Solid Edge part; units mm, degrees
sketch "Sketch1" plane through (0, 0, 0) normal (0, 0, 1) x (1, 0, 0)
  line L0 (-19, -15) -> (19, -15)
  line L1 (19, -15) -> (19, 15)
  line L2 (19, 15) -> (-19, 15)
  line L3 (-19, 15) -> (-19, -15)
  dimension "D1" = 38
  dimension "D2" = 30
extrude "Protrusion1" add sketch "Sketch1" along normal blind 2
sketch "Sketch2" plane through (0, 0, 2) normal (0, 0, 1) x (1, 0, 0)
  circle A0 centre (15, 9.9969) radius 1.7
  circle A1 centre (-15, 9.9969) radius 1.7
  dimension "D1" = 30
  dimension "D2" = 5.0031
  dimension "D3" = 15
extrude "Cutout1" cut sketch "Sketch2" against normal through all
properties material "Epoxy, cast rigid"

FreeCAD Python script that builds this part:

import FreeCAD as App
import Part
import Sketcher
from FreeCAD import Vector

doc = App.newDocument("Part")
body = doc.addObject("PartDesign::Body", "Body")

# Sketch on XY plane
sketch1 = doc.addObject("Sketcher::SketchObject", "Sketch")
body.addObject(sketch1)
sketch1.AttachmentSupport = (doc.XY_Plane, [""])
sketch1.MapMode = "FlatFace"
sketch1.addGeometry([
    Part.LineSegment(Vector(-19, 15, 0), Vector(-19, -15, 0)),
    Part.LineSegment(Vector(-19, -15, 0), Vector(19, -15, 0)),
    Part.LineSegment(Vector(19, -15, 0), Vector(19, 15, 0)),
    Part.LineSegment(Vector(19, 15, 0), Vector(-19, 15, 0)),
], False)
sketch1.addConstraint([
    Sketcher.Constraint("Coincident", 0, 2, 1, 1),
    Sketcher.Constraint("Coincident", 1, 2, 2, 1),
    Sketcher.Constraint("Coincident", 2, 2, 3, 1),
    Sketcher.Constraint("Coincident", 3, 2, 0, 1),
    Sketcher.Constraint("Vertical", 0),
    Sketcher.Constraint("Horizontal", 1),
    Sketcher.Constraint("Vertical", 2),
    Sketcher.Constraint("Horizontal", 3),
    Sketcher.Constraint("Symmetric", 0, 2, 2, 2, -1, 1),
    Sketcher.Constraint("DistanceX", 0, 2, -1, 1, 19.0),
    Sketcher.Constraint("DistanceY", 0, 2, 0, 1, 30.0),
])
pad1 = doc.addObject("PartDesign::Pad", "Pad")
body.addObject(pad1)
pad1.Profile = sketch1
pad1.Length = 2

# Sketch on XY plane
sketch2 = doc.addObject("Sketcher::SketchObject", "Sketch001")
body.addObject(sketch2)
sketch2.AttachmentSupport = (doc.XY_Plane, [""])
sketch2.MapMode = "FlatFace"
sketch2.AttachmentOffset = App.Placement(Vector(0, 0, 2), App.Rotation())
sketch2.addGeometry([
    Part.Circle(Vector(15, 10, 0), Vector(0, 0, 1), 1.7),
    Part.Circle(Vector(-15, 10, 0), Vector(0, 0, 1), 1.7),
], False)
sketch2.addConstraint([
    Sketcher.Constraint("Equal", 0, 1),
    Sketcher.Constraint("Symmetric", 0, 3, 1, 3, -2),
    Sketcher.Constraint("DistanceX", -1, 1, 0, 3, 15.0),
    Sketcher.Constraint("Diameter", 0, 3.4),
    Sketcher.Constraint("DistanceY", -1, 1, 0, 3, 9.997),
])
pocket1 = doc.addObject("PartDesign::Pocket", "Pocket")
body.addObject(pocket1)
pocket1.Profile = sketch2
pocket1.Type = "ThroughAll"

doc.recompute()
